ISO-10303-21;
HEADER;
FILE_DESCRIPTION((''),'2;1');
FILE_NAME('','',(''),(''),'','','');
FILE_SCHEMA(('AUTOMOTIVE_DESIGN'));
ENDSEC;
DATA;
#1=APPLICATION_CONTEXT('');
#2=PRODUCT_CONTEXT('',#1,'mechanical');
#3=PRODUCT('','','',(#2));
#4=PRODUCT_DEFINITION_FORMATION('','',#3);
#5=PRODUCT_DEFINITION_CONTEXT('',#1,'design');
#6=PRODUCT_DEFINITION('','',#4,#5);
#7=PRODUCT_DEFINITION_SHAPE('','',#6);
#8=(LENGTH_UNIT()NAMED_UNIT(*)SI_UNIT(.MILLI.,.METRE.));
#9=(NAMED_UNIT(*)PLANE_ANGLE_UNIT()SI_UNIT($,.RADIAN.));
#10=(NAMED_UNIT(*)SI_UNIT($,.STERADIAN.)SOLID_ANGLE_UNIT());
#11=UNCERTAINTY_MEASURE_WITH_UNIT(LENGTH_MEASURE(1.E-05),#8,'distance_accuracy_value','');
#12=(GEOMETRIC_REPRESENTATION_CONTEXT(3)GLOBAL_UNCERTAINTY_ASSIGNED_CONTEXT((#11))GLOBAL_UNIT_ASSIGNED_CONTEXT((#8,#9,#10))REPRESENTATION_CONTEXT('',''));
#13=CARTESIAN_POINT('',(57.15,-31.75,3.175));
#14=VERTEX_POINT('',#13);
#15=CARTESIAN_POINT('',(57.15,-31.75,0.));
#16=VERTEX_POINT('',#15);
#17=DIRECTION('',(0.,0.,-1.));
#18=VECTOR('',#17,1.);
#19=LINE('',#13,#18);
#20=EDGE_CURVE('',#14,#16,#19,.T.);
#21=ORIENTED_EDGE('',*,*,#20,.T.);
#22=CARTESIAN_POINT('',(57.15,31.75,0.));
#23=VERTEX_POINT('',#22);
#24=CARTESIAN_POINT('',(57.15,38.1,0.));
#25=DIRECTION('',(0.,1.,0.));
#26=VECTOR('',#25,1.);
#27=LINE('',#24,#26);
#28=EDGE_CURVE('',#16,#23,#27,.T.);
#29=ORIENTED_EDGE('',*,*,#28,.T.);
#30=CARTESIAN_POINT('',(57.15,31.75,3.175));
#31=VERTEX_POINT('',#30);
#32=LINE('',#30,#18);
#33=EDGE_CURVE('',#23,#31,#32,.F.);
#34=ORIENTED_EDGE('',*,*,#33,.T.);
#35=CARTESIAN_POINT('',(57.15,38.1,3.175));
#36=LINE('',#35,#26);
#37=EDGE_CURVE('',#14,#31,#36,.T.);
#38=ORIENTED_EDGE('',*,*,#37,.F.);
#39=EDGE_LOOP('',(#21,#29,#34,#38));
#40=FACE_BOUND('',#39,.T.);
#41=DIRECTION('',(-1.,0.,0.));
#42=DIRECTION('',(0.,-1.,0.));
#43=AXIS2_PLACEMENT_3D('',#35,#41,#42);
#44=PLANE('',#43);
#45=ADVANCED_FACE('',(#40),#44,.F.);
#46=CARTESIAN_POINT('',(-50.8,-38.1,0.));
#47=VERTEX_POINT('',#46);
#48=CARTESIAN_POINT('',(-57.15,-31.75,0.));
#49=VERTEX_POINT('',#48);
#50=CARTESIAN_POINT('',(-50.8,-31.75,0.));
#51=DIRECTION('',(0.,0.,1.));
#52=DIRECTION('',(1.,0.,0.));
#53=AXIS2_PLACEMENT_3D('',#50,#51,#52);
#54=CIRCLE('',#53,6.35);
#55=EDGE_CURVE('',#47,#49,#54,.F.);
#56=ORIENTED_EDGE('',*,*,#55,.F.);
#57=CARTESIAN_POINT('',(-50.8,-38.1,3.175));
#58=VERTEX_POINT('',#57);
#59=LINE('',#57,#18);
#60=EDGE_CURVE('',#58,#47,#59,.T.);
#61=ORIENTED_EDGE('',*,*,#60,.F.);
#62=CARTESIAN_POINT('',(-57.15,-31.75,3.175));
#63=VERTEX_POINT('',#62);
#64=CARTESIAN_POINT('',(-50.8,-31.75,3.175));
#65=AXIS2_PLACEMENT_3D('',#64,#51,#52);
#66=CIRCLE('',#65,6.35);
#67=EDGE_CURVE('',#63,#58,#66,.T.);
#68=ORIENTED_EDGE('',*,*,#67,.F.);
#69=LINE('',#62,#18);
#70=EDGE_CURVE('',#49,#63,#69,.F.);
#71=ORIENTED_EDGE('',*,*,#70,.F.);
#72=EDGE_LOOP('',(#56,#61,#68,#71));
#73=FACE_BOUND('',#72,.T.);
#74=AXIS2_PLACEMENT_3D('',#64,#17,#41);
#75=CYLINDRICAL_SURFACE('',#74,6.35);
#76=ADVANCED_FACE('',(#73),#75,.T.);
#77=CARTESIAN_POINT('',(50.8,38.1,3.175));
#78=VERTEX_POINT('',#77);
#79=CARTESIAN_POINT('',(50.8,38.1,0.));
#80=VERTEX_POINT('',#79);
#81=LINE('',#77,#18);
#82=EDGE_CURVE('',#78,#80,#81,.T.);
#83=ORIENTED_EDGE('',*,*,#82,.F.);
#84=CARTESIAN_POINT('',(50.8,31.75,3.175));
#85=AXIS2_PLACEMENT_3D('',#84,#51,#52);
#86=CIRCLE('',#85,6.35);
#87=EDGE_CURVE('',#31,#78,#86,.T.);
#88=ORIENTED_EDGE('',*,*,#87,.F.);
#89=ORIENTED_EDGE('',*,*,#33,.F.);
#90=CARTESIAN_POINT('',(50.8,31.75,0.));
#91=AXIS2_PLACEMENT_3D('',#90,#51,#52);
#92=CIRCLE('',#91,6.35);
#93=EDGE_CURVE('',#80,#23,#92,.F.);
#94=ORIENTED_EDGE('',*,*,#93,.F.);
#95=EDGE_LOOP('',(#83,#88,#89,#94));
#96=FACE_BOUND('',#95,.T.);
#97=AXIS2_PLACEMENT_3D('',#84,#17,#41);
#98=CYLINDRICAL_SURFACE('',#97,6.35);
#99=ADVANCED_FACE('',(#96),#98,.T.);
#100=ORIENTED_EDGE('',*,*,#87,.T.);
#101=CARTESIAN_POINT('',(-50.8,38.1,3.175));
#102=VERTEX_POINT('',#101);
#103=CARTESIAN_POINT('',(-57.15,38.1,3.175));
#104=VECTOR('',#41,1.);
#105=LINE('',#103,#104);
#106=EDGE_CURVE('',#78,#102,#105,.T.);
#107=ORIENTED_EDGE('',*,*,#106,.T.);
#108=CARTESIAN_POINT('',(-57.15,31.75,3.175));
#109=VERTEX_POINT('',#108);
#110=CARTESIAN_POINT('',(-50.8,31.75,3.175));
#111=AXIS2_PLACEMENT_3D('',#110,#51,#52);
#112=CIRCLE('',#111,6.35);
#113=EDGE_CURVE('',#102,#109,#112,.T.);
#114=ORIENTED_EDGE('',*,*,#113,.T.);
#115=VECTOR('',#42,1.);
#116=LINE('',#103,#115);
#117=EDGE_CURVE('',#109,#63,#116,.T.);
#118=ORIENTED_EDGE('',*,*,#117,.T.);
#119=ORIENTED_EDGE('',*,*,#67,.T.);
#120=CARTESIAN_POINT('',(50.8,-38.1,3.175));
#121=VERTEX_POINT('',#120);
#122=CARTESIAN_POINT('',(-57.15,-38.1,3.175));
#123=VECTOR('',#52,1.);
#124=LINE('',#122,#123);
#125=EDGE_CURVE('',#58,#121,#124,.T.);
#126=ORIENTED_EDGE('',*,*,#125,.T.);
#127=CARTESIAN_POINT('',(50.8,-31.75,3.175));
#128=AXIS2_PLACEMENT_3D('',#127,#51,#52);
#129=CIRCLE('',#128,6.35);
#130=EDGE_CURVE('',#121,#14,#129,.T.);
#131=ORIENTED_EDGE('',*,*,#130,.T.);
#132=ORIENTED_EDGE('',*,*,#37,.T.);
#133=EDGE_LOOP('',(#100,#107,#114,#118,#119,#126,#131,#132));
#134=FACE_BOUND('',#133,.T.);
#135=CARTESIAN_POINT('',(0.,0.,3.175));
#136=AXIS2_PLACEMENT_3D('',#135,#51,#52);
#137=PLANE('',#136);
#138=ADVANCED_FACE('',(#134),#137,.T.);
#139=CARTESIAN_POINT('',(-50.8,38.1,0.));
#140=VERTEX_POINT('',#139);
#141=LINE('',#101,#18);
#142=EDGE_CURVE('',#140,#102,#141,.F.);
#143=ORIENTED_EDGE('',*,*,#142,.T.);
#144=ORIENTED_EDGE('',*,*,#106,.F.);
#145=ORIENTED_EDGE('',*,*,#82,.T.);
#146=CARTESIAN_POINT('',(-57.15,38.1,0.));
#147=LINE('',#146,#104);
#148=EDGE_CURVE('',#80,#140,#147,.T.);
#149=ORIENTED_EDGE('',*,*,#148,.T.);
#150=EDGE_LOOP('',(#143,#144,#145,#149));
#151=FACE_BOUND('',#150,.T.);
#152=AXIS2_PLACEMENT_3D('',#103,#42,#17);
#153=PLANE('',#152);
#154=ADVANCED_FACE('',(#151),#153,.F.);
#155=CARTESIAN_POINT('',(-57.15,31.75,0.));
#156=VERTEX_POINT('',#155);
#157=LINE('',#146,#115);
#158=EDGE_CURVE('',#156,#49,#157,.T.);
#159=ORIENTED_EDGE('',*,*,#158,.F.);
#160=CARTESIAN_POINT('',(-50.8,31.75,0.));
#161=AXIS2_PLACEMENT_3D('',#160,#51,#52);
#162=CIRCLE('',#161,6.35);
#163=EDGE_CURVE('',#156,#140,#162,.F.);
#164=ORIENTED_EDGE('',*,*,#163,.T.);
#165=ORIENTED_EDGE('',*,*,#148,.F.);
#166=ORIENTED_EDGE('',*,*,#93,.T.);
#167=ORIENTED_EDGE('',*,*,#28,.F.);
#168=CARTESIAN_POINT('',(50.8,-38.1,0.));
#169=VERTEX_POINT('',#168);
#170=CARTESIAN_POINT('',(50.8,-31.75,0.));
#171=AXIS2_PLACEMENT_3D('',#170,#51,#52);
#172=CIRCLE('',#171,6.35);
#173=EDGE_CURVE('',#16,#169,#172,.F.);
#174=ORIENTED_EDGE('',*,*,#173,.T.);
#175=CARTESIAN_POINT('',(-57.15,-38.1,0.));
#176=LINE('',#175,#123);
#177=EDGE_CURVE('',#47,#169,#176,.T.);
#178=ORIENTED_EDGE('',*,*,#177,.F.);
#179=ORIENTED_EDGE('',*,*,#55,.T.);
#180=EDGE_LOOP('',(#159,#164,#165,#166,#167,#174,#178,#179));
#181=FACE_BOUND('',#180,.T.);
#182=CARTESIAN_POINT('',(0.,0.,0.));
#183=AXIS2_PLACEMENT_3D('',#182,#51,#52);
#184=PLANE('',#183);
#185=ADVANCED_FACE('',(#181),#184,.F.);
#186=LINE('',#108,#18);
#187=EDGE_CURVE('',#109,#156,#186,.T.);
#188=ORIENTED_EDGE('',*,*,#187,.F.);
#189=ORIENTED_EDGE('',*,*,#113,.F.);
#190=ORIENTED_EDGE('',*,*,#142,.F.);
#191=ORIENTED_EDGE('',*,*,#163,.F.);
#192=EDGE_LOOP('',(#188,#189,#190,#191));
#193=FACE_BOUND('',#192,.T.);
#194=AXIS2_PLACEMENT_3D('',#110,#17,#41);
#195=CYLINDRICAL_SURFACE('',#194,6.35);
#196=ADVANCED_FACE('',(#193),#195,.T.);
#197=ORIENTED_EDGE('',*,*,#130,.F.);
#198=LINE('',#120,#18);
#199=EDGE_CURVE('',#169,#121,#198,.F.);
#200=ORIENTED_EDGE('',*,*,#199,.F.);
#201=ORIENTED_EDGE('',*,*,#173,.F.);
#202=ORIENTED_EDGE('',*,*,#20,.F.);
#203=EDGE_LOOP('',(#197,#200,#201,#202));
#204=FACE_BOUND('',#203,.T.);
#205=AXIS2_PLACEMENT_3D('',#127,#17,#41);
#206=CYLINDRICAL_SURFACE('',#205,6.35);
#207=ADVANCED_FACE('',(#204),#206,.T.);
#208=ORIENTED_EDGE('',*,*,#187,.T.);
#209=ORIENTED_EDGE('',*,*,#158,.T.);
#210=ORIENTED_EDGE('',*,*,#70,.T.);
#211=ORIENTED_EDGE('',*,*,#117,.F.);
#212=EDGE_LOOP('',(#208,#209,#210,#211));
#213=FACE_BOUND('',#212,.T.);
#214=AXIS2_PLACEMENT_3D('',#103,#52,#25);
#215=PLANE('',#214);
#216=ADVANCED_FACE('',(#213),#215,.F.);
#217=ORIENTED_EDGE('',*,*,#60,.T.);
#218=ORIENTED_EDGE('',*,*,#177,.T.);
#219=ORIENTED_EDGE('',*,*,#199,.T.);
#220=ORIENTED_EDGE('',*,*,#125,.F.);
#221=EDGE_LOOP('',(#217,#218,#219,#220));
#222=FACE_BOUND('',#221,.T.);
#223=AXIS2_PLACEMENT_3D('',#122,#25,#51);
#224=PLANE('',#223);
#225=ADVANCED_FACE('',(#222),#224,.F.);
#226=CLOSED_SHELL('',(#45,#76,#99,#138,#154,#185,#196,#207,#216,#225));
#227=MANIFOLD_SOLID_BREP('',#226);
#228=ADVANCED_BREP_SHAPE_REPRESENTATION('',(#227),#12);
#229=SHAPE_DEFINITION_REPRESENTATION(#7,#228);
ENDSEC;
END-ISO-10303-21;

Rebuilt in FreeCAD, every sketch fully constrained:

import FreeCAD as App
import Part
import Sketcher

V = App.Vector
Q = App.Units.Quantity


def edges_at(feature, points):
    """Names of the edges that pass closest to the given points."""
    edges = feature.Shape.Edges
    near = lambda p: min(range(len(edges)), key=lambda i: edges[i].distToShape(Part.Vertex(*p))[0])
    return sorted({f"Edge{near(p) + 1}" for p in points})

doc = App.newDocument("Part")
params = doc.addObject("Spreadsheet::Sheet", "Params")
for row, (alias, value) in enumerate([
    ("sketch1_height", "3 in"),
    ("sketch1_width", "4.5 in"),
    ("pad1_length", "0.125 in"),
    ("fillet_radius", "0.25 in"),
], start=1):
    params.set(f"A{row}", alias)
    params.set(f"B{row}", "=" + value)
    params.setAlias(f"B{row}", alias)

body = doc.addObject("PartDesign::Body", "Body")

# Sketch on XY plane
sketch1 = body.newObject("Sketcher::SketchObject", "Sketch")
sketch1.AttachmentSupport = (doc.getObject("XY_Plane"), [""])
sketch1.MapMode = "FlatFace"
sketch1.addGeometry([
    Part.LineSegment(V(-57, 38, 0), V(-57, -38, 0)),
    Part.LineSegment(V(-57, -38, 0), V(57, -38, 0)),
    Part.LineSegment(V(57, -38, 0), V(57, 38, 0)),
    Part.LineSegment(V(57, 38, 0), V(-57, 38, 0)),
], False)
sketch1.addConstraint([
    Sketcher.Constraint("Coincident", 0, 2, 1, 1),
    Sketcher.Constraint("Coincident", 1, 2, 2, 1),
    Sketcher.Constraint("Coincident", 2, 2, 3, 1),
    Sketcher.Constraint("Coincident", 3, 2, 0, 1),
    Sketcher.Constraint("Vertical", 0),
    Sketcher.Constraint("Horizontal", 1),
    Sketcher.Constraint("Vertical", 2),
    Sketcher.Constraint("Horizontal", 3),
    Sketcher.Constraint("Symmetric", 0, 2, 2, 2, -1, 1),
    Sketcher.Constraint("DistanceY", 0, 2, 0, 1, Q("3 in")),
    Sketcher.Constraint("DistanceX", 1, 1, 1, 2, Q("4.5 in")),
])
sketch1.setExpression("Constraints[9]", "Params.sketch1_height")
sketch1.setExpression("Constraints[10]", "Params.sketch1_width")
pad1 = body.newObject("PartDesign::Pad", "Pad")
pad1.Profile = sketch1
pad1.setExpression("Length", "Params.pad1_length")
doc.recompute()

fillet = body.newObject("PartDesign::Fillet", "Fillet")
fillet.Base = (pad1, edges_at(pad1, [
    (57.15, -38.1, 1.587),
    (-57.15, -38.1, 1.587),
    (-57.15, 38.1, 1.587),
    (57.15, 38.1, 1.587),
]))
fillet.setExpression("Radius", "Params.fillet_radius")

doc.recompute()
